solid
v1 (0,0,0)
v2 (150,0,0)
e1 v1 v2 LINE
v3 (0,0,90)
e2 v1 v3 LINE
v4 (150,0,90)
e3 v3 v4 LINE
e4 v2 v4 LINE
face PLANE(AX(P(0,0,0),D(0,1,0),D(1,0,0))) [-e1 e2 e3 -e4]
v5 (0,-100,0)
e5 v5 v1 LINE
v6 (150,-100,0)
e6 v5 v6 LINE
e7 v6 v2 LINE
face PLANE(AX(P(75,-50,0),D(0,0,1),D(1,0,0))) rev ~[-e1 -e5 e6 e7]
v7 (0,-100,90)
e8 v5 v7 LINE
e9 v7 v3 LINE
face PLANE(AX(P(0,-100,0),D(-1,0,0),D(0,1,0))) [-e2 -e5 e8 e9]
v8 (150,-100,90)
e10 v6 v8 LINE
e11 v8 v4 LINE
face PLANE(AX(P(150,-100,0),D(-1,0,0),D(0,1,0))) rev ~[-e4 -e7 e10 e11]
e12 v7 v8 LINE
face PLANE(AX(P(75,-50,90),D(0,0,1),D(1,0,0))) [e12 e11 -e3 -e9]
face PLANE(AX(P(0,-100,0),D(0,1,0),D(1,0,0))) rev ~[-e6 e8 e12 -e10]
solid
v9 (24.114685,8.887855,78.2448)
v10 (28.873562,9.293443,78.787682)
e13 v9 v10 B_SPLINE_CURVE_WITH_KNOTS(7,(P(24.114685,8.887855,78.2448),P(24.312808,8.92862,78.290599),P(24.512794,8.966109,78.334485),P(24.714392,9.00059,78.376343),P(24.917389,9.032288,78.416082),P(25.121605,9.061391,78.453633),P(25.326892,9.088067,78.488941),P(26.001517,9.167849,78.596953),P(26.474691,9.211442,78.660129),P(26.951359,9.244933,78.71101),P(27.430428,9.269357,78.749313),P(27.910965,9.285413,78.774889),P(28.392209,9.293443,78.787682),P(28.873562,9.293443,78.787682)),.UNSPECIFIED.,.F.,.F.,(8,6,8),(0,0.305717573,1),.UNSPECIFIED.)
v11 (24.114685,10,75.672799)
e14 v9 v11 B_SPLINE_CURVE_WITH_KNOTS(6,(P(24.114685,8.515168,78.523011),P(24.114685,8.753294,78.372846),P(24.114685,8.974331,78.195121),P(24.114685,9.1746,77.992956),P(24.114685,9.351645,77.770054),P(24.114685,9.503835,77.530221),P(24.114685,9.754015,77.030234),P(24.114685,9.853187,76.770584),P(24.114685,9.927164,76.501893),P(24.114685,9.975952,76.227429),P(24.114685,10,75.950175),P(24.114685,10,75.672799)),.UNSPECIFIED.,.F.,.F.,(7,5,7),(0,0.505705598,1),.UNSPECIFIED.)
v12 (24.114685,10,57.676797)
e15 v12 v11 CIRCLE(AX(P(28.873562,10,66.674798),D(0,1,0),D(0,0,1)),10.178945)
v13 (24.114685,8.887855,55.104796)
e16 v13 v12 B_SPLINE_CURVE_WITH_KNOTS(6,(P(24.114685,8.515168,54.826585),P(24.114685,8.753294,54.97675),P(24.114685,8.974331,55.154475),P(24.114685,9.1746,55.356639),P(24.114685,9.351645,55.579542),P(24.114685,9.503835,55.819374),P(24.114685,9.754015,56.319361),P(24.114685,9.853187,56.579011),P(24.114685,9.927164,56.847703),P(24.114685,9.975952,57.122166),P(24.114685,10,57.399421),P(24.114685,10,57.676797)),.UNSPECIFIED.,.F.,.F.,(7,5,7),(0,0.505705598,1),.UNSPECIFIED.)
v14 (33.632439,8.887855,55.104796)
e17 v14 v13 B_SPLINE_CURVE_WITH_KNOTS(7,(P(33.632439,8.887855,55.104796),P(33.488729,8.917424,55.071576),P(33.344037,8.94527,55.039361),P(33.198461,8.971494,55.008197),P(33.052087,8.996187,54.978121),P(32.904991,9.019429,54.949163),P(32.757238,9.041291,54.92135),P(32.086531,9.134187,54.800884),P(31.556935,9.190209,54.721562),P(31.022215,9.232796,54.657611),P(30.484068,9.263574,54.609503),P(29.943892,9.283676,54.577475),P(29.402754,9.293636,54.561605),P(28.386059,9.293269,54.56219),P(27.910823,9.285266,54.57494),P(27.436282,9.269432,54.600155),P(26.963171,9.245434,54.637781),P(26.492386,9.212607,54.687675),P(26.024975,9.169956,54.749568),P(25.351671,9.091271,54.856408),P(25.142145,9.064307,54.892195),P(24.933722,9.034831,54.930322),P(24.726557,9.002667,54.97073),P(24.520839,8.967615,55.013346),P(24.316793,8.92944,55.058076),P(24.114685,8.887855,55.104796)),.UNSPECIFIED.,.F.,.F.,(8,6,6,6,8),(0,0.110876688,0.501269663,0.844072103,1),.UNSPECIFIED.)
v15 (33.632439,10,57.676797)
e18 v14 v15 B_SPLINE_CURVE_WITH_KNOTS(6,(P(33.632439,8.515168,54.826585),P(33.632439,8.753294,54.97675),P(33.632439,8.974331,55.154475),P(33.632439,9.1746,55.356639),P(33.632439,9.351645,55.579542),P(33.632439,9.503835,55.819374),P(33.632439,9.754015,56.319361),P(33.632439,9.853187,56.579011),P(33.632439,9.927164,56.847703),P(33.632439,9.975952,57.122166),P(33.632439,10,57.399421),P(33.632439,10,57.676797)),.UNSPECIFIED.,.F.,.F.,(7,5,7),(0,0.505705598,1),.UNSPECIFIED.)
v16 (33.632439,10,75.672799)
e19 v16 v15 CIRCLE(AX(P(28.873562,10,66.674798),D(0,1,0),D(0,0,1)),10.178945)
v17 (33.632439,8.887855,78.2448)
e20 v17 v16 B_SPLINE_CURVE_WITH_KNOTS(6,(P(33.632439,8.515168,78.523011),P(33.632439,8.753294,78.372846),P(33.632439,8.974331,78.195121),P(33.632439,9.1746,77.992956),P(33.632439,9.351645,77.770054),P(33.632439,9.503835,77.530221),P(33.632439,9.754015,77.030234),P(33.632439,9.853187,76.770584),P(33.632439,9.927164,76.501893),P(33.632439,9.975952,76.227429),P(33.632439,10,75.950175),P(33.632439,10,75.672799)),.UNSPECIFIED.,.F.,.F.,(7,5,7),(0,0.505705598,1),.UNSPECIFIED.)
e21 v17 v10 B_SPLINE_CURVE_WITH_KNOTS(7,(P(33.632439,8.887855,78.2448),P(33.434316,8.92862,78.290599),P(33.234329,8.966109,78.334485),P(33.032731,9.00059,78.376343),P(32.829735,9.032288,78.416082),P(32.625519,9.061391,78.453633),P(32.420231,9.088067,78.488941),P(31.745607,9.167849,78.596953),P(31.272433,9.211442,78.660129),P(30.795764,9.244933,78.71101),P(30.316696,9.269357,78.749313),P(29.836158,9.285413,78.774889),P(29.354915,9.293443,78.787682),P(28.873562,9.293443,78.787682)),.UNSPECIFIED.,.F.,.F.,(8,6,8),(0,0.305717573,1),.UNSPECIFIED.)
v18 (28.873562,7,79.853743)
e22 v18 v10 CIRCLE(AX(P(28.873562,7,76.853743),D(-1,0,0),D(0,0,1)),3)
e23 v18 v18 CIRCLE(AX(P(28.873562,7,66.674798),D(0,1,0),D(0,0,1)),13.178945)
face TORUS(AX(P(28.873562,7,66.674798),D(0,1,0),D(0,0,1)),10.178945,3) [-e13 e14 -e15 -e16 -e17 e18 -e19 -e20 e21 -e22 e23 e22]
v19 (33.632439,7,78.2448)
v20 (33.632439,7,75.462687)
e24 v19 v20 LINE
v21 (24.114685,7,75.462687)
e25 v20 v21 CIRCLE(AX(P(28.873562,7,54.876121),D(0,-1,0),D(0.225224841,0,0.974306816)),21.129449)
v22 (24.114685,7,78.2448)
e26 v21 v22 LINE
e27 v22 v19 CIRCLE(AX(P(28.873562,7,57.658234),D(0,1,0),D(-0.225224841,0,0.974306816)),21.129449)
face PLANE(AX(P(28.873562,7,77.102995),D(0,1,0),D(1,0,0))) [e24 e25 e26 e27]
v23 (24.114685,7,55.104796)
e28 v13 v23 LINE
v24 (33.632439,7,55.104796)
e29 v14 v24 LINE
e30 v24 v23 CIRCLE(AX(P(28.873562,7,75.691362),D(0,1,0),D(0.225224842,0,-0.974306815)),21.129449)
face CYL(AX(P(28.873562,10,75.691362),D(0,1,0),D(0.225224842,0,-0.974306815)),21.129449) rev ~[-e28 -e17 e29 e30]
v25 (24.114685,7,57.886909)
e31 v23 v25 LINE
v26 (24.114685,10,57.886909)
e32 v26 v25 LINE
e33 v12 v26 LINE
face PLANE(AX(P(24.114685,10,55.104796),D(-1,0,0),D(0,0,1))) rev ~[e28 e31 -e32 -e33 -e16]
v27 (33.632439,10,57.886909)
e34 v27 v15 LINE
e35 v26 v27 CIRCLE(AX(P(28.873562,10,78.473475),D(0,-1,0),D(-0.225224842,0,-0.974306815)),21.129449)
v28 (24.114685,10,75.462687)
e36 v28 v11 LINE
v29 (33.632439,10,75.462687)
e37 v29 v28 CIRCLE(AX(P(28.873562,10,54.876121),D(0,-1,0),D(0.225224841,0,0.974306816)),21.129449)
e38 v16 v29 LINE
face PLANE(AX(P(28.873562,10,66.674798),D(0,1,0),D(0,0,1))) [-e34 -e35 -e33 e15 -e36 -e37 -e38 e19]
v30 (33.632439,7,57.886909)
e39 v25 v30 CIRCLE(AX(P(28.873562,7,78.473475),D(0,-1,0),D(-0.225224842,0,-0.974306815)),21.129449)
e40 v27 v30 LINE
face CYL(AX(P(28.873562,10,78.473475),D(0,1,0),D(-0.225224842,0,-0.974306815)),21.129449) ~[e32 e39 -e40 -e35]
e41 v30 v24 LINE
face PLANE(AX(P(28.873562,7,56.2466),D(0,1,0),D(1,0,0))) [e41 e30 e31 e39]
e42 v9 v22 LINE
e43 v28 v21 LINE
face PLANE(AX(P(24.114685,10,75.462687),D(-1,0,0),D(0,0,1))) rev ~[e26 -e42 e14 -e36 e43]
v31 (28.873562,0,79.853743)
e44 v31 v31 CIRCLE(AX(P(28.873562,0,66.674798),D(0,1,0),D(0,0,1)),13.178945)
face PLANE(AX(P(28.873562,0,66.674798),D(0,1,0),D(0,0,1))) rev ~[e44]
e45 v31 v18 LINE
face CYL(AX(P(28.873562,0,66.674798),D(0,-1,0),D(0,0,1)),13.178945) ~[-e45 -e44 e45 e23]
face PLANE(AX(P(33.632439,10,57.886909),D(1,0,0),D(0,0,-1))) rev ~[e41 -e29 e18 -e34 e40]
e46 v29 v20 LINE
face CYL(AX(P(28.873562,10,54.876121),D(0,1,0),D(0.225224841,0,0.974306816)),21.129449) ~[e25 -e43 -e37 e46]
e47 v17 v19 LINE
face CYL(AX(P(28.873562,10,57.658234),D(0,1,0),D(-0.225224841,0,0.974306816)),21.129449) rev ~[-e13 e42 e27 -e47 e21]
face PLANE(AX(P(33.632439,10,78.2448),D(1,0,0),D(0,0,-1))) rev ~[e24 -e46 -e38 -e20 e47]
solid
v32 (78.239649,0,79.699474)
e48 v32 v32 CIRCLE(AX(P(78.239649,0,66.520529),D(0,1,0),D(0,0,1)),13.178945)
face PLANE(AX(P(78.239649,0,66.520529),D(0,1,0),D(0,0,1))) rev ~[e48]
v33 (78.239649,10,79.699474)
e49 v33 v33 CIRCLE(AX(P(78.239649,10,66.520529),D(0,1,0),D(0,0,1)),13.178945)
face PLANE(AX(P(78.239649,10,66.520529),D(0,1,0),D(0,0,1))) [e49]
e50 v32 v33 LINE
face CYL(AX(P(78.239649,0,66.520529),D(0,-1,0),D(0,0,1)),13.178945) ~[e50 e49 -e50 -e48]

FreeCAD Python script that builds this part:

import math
import FreeCAD as App
import Part
import Sketcher
from FreeCAD import Vector
Q = App.Units.Quantity


def edges_at(feature, points):
    """Names of the edges that pass closest to the given points."""
    edges = feature.Shape.Edges
    near = lambda p: min(range(len(edges)), key=lambda i: edges[i].distToShape(Part.Vertex(*p))[0])
    return sorted({f"Edge{near(p) + 1}" for p in points})

doc = App.newDocument("Part")
body = doc.addObject("PartDesign::Body", "Body")

# Sketch on XY plane
sketch1 = body.newObject("Sketcher::SketchObject", "Sketch")
sketch1.AttachmentSupport = (doc.getObject("XY_Plane"), [""])
sketch1.MapMode = "FlatFace"
sketch1.addGeometry([
    Part.LineSegment(Vector(0, 0, 0), Vector(0, -100, 0)),
    Part.LineSegment(Vector(0, -100, 0), Vector(150, -100, 0)),
    Part.LineSegment(Vector(150, -100, 0), Vector(150, 0, 0)),
    Part.LineSegment(Vector(150, 0, 0), Vector(0, 0, 0)),
], False)
sketch1.addConstraint([
    Sketcher.Constraint("Coincident", 0, 2, 1, 1),
    Sketcher.Constraint("Coincident", 1, 2, 2, 1),
    Sketcher.Constraint("Coincident", 2, 2, 3, 1),
    Sketcher.Constraint("Coincident", 3, 2, 0, 1),
    Sketcher.Constraint("Vertical", 0),
    Sketcher.Constraint("Horizontal", 1),
    Sketcher.Constraint("Vertical", 2),
    Sketcher.Constraint("Horizontal", 3),
    Sketcher.Constraint("Coincident", 3, 2, -1, 1),
    Sketcher.Constraint("DistanceX", 1, 1, 1, 2, Q("150 mm")),
    Sketcher.Constraint("DistanceY", 0, 2, 0, 1, Q("100 mm")),
])
pad1 = body.newObject("PartDesign::Pad", "Pad")
pad1.Profile = sketch1
pad1.Length = 90
body2 = doc.addObject("PartDesign::Body", "Body001")

# Sketch on XZ plane
sketch2 = body2.newObject("Sketcher::SketchObject", "Sketch001")
sketch2.AttachmentSupport = (doc.getObject("XZ_Plane001"), [""])
sketch2.MapMode = "FlatFace"
sketch2.addGeometry(Part.Circle(Vector(28.873562, 66.674798, 0), Vector(0, 0, 1), 13.178945), False)
sketch2.addConstraint([
    Sketcher.Constraint("Diameter", 0, Q("26.357891 mm")),
    Sketcher.Constraint("DistanceX", -1, 1, 0, 3, Q("28.873562 mm")),
    Sketcher.Constraint("DistanceY", -1, 1, 0, 3, Q("66.674798 mm")),
])
pad2 = body2.newObject("PartDesign::Pad", "Pad001")
pad2.Profile = sketch2
pad2.Length = 10
pad2.Reversed = True
doc.recompute()

fillet = body2.newObject("PartDesign::Fillet", "Fillet")
fillet.Base = (pad2, edges_at(pad2, [(28.874, 10, 53.496)]))
fillet.Radius = 3

# Sketch on XZ plane
sketch3 = body2.newObject("Sketcher::SketchObject", "Sketch002")
sketch3.AttachmentSupport = (doc.getObject("XZ_Plane001"), [""])
sketch3.MapMode = "FlatFace"
sketch3.AttachmentOffset = App.Placement(Vector(0, 0, -10), App.Rotation())
sketch3.addGeometry([
    Part.LineSegment(Vector(24.114685, 75.462687, 0), Vector(24.114685, 78.2448, 0)),  # 0
    Part.ArcOfCircle(Part.Circle(Vector(28.873562, 57.658234, 0), Vector(0, 0, 1), 21.129449), math.radians(76.9839), math.radians(103.0161)),  # 1
    Part.LineSegment(Vector(33.632439, 78.2448, 0), Vector(33.632439, 75.462687, 0)),  # 2
    Part.ArcOfCircle(Part.Circle(Vector(28.873562, 54.876121, 0), Vector(0, 0, 1), 21.129449), math.radians(76.9839), math.radians(103.0161)),  # 3
    Part.LineSegment(Vector(33.632439, 57.886909, 0), Vector(33.632439, 55.104796, 0)),  # 4
    Part.ArcOfCircle(Part.Circle(Vector(28.873562, 75.691362, 0), Vector(0, 0, 1), 21.129449), math.radians(-103.0161), math.radians(-76.9839)),  # 5
    Part.LineSegment(Vector(24.114685, 55.104796, 0), Vector(24.114685, 57.886909, 0)),  # 6
    Part.ArcOfCircle(Part.Circle(Vector(28.873562, 78.473475, 0), Vector(0, 0, 1), 21.129449), math.radians(-103.0161), math.radians(-76.9839)),  # 7
], False)
sketch3.addConstraint([
    Sketcher.Constraint("Coincident", 0, 2, 1, 2),
    Sketcher.Constraint("Coincident", 1, 1, 2, 1),
    Sketcher.Constraint("Coincident", 2, 2, 3, 1),
    Sketcher.Constraint("Coincident", 3, 2, 0, 1),
    Sketcher.Constraint("Coincident", 4, 2, 5, 2),
    Sketcher.Constraint("Coincident", 5, 1, 6, 1),
    Sketcher.Constraint("Coincident", 6, 2, 7, 1),
    Sketcher.Constraint("Coincident", 7, 2, 4, 1),
    Sketcher.Constraint("Vertical", 0),
    Sketcher.Constraint("Vertical", 2),
    Sketcher.Constraint("Vertical", 4),
    Sketcher.Constraint("Vertical", 6),
    Sketcher.Constraint("Equal", 1, 3),
    Sketcher.Constraint("Equal", 3, 5),
    Sketcher.Constraint("Equal", 5, 7),
    Sketcher.Constraint("Horizontal", 0, 2, 1, 1),
    Sketcher.Constraint("Horizontal", 2, 2, 3, 2),
    Sketcher.Constraint("Horizontal", 4, 2, 5, 1),
    Sketcher.Constraint("Horizontal", 6, 2, 7, 2),
    Sketcher.Constraint("Vertical", 3, 3, 5, 3),
    Sketcher.Constraint("Vertical", 2, 2, 4, 2),
    Sketcher.Constraint("Equal", 2, 4),
    Sketcher.Constraint("Radius", 1, Q("21.129449 mm")),
    Sketcher.Constraint("DistanceY", -1, 1, 0, 2, Q("78.2448 mm")),
    Sketcher.Constraint("DistanceY", 0, 1, 0, 2, Q("2.782113 mm")),
    Sketcher.Constraint("DistanceX", -1, 1, 1, 3, Q("28.873562 mm")),
    Sketcher.Constraint("DistanceY", -1, 1, 3, 3, Q("54.876121 mm")),
    Sketcher.Constraint("DistanceY", -1, 1, 6, 2, Q("57.886909 mm")),
])
pocket1 = body2.newObject("PartDesign::Pocket", "Pocket")
pocket1.Profile = sketch3
pocket1.Length = 3
pocket1.Reversed = True
body3 = doc.addObject("PartDesign::Body", "Body002")

# Sketch on XZ plane
sketch4 = body3.newObject("Sketcher::SketchObject", "Sketch003")
sketch4.AttachmentSupport = (doc.getObject("XZ_Plane002"), [""])
sketch4.MapMode = "FlatFace"
sketch4.addGeometry(Part.Circle(Vector(78.239649, 66.520529, 0), Vector(0, 0, 1), 13.178945), False)
sketch4.addConstraint([
    Sketcher.Constraint("Diameter", 0, Q("26.357891 mm")),
    Sketcher.Constraint("DistanceX", -1, 1, 0, 3, Q("78.239649 mm")),
    Sketcher.Constraint("DistanceY", -1, 1, 0, 3, Q("66.520529 mm")),
])
pad3 = body3.newObject("PartDesign::Pad", "Pad002")
pad3.Profile = sketch4
pad3.Length = 10
pad3.Reversed = True

doc.recompute()
